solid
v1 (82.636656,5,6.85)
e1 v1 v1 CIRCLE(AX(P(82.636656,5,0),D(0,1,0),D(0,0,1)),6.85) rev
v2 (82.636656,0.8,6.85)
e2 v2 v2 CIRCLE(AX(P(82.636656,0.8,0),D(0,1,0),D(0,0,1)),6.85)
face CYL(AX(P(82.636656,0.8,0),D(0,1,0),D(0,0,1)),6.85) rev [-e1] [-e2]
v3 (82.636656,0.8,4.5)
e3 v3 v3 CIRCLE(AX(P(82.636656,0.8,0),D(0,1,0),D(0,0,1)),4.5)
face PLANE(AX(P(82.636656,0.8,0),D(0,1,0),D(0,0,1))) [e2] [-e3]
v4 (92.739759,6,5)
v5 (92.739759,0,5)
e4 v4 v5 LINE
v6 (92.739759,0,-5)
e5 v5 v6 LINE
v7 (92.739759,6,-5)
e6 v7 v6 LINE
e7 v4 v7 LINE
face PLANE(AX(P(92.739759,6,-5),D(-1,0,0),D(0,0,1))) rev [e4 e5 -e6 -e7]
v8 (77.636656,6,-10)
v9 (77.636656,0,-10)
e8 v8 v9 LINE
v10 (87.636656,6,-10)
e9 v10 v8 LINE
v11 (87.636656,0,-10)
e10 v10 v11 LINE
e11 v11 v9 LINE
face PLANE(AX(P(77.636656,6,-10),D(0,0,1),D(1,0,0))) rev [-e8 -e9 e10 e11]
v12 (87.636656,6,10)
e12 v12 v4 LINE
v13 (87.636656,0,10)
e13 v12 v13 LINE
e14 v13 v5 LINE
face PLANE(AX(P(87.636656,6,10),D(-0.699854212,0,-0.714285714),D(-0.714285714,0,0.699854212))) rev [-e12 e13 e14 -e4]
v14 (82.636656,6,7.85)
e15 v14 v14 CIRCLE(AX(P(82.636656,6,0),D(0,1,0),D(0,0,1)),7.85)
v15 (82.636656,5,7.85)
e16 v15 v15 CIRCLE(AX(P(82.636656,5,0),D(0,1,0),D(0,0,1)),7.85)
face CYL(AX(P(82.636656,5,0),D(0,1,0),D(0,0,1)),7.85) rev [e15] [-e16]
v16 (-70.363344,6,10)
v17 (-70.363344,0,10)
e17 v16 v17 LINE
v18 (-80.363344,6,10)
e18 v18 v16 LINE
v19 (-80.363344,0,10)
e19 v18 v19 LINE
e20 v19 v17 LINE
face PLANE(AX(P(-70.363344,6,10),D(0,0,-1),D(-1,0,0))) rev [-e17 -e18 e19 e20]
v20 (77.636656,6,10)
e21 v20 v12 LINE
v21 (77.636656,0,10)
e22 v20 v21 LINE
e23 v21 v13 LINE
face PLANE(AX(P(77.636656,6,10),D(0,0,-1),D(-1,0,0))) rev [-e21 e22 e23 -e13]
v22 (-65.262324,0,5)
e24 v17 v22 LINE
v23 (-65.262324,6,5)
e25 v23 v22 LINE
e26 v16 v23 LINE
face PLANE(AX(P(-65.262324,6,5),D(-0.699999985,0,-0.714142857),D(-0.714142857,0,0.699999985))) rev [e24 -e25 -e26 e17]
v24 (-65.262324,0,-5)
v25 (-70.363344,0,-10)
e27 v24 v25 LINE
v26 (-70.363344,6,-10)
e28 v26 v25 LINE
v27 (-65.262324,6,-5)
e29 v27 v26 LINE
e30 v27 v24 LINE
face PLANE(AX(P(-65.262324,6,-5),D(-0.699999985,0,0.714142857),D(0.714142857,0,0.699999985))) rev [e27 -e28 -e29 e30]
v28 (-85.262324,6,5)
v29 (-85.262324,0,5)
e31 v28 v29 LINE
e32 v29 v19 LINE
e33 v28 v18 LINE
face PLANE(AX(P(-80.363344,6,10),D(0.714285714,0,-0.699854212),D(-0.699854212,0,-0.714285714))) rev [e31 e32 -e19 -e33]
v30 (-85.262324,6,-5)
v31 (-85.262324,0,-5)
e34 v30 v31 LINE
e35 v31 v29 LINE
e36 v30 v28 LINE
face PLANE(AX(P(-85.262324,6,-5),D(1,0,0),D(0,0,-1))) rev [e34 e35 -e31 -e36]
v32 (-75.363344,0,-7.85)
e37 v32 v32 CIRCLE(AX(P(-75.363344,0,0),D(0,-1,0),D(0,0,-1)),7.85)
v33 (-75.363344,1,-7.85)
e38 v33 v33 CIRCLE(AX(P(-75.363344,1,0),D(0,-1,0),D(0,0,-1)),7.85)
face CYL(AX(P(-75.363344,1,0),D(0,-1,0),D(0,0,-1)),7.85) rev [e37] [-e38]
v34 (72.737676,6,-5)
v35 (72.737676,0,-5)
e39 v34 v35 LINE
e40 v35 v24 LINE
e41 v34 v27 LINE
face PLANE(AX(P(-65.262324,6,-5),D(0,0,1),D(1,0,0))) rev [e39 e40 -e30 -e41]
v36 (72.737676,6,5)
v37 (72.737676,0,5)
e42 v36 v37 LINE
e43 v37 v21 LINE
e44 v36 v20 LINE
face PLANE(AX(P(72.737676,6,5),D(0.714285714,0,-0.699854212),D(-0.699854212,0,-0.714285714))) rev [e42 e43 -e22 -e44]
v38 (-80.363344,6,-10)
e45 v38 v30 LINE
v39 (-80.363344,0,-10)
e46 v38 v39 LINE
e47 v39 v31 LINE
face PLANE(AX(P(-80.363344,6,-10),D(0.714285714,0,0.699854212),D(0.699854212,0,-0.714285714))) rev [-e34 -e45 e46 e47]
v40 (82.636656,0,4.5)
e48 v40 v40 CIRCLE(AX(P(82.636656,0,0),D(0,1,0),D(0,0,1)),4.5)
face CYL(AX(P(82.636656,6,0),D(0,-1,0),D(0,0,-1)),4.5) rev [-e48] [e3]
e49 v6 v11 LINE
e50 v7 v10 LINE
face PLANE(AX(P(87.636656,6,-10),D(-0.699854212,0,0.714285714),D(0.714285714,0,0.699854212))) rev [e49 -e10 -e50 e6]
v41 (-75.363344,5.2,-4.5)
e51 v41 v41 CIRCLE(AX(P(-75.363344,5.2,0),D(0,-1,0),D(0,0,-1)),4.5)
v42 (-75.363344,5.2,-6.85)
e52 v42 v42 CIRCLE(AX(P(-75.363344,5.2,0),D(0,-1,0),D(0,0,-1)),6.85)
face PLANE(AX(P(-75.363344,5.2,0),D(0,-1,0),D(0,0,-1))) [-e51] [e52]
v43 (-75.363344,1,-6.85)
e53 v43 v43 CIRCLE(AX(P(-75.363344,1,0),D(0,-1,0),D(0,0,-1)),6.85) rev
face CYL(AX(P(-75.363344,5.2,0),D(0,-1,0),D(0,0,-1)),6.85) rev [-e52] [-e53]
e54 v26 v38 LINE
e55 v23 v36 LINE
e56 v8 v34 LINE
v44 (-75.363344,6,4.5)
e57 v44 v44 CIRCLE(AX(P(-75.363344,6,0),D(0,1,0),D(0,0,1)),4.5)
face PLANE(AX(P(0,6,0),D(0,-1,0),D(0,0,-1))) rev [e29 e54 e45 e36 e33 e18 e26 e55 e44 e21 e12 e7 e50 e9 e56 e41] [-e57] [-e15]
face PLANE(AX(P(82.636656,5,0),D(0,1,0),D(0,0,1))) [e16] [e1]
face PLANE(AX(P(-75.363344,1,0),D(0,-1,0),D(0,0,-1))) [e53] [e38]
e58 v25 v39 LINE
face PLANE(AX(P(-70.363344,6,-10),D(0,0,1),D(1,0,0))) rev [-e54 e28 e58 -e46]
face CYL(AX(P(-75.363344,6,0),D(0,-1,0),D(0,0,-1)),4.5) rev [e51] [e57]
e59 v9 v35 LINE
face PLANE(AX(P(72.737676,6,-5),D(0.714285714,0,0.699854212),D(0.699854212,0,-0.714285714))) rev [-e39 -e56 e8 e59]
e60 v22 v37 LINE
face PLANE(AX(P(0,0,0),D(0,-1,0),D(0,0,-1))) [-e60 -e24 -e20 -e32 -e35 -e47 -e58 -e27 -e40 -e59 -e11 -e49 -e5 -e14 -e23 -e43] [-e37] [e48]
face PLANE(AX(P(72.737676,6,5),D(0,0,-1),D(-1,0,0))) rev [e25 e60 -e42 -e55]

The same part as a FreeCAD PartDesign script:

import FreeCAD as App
import Part
import Sketcher

V = App.Vector

doc = App.newDocument("Part")
body = doc.addObject("PartDesign::Body", "Body")

# Sketch on XZ plane
sketch1 = doc.addObject("Sketcher::SketchObject", "Sketch")
body.addObject(sketch1)
sketch1.AttachmentSupport = (doc.XZ_Plane, [""])
sketch1.MapMode = "FlatFace"
sketch1.addGeometry([
    Part.LineSegment(V(-65.262324, -5, 0), V(-70.363344, -10, 0)),  # 0
    Part.LineSegment(V(-70.363344, -10, 0), V(-80.363344, -10, 0)),  # 1
    Part.LineSegment(V(-80.363344, -10, 0), V(-85.262324, -5, 0)),  # 2
    Part.LineSegment(V(-85.262324, -5, 0), V(-85.262324, 5, 0)),  # 3
    Part.LineSegment(V(-85.262324, 5, 0), V(-80.363344, 10, 0)),  # 4
    Part.LineSegment(V(-80.363344, 10, 0), V(-70.363344, 10, 0)),  # 5
    Part.LineSegment(V(-70.363344, 10, 0), V(-65.262324, 5, 0)),  # 6
    Part.LineSegment(V(-65.262324, 5, 0), V(72.737676, 5, 0)),  # 7
    Part.LineSegment(V(72.737676, 5, 0), V(77.636656, 10, 0)),  # 8
    Part.LineSegment(V(77.636656, 10, 0), V(87.636656, 10, 0)),  # 9
    Part.LineSegment(V(87.636656, 10, 0), V(92.739759, 5, 0)),  # 10
    Part.LineSegment(V(92.739759, 5, 0), V(92.739759, -5, 0)),  # 11
    Part.LineSegment(V(92.739759, -5, 0), V(87.636656, -10, 0)),  # 12
    Part.LineSegment(V(87.636656, -10, 0), V(77.636656, -10, 0)),  # 13
    Part.LineSegment(V(77.636656, -10, 0), V(72.737676, -5, 0)),  # 14
    Part.LineSegment(V(72.737676, -5, 0), V(-65.262324, -5, 0)),  # 15
    Part.Circle(V(-75.363344, 0, 0), V(0, 0, 1), 4.5),  # 16
    Part.Circle(V(82.636656, 0, 0), V(0, 0, 1), 4.5),  # 17
], False)
sketch1.addConstraint([
    Sketcher.Constraint("Coincident", 0, 2, 1, 1),
    Sketcher.Constraint("Coincident", 1, 2, 2, 1),
    Sketcher.Constraint("Coincident", 2, 2, 3, 1),
    Sketcher.Constraint("Coincident", 3, 2, 4, 1),
    Sketcher.Constraint("Coincident", 4, 2, 5, 1),
    Sketcher.Constraint("Coincident", 5, 2, 6, 1),
    Sketcher.Constraint("Coincident", 6, 2, 7, 1),
    Sketcher.Constraint("Coincident", 7, 2, 8, 1),
    Sketcher.Constraint("Coincident", 8, 2, 9, 1),
    Sketcher.Constraint("Coincident", 9, 2, 10, 1),
    Sketcher.Constraint("Coincident", 10, 2, 11, 1),
    Sketcher.Constraint("Coincident", 11, 2, 12, 1),
    Sketcher.Constraint("Coincident", 12, 2, 13, 1),
    Sketcher.Constraint("Coincident", 13, 2, 14, 1),
    Sketcher.Constraint("Coincident", 14, 2, 15, 1),
    Sketcher.Constraint("Coincident", 15, 2, 0, 1),
    Sketcher.Constraint("Horizontal", 1),
    Sketcher.Constraint("Vertical", 3),
    Sketcher.Constraint("Horizontal", 5),
    Sketcher.Constraint("Horizontal", 7),
    Sketcher.Constraint("Horizontal", 9),
    Sketcher.Constraint("Vertical", 11),
    Sketcher.Constraint("Horizontal", 13),
    Sketcher.Constraint("Horizontal", 15),
    Sketcher.Constraint("Equal", 16, 17),
    Sketcher.Constraint("Symmetric", 1, 2, 4, 2, -1),
    Sketcher.Constraint("Symmetric", 9, 2, 12, 2, -1),
    Sketcher.Constraint("Symmetric", 7, 2, 14, 2, -1),
    Sketcher.Constraint("PointOnObject", 16, 3, -1),
    Sketcher.Constraint("PointOnObject", 17, 3, -1),
    Sketcher.Constraint("Parallel", 4, 8),
    Sketcher.Constraint("Perpendicular", 8, 10),
    Sketcher.Constraint("Perpendicular", 2, 12),
    Sketcher.Constraint("Perpendicular", 12, 14),
    Sketcher.Constraint("Horizontal", 3, 2, 6, 2),
    Sketcher.Constraint("Horizontal", 5, 2, 8, 2),
    Sketcher.Constraint("Horizontal", 7, 2, 10, 2),
    Sketcher.Constraint("Horizontal", 2, 2, 11, 2),
    Sketcher.Constraint("Vertical", 0, 2, 5, 2),
    Sketcher.Constraint("Vertical", 6, 2, 15, 2),
    Sketcher.Constraint("Equal", 5, 9),
    Sketcher.Constraint("Equal", 13, 3),
    Sketcher.Constraint("Diameter", 16, 9.0),
    Sketcher.Constraint("DistanceX", 1, 2, 1, 1, 10.0),
    Sketcher.Constraint("DistanceX", 7, 1, 7, 2, 138.0),
    Sketcher.Constraint("Distance", 2, 7.0),
    Sketcher.Constraint("DistanceY", 0, 2, -1, 1, 10.0),
    Sketcher.Constraint("DistanceX", 16, 3, 17, 3, 158.0),
    Sketcher.Constraint("DistanceX", 16, 3, 0, 2, 5.0),
    Sketcher.Constraint("DistanceX", 3, 2, 6, 2, 20.0),
    Sketcher.Constraint("DistanceX", -1, 1, 10, 2, 92.739759),
])
pad1 = doc.addObject("PartDesign::Pad", "Pad")
body.addObject(pad1)
pad1.Profile = sketch1
pad1.Length = 6
pad1.Reversed = True

# Sketch on XZ plane
sketch2 = doc.addObject("Sketcher::SketchObject", "Sketch001")
body.addObject(sketch2)
sketch2.AttachmentSupport = (doc.XZ_Plane, [""])
sketch2.MapMode = "FlatFace"
sketch2.AttachmentOffset = App.Placement(V(0, 0, -6), App.Rotation())
sketch2.addGeometry(Part.Circle(V(82.636656, 0, 0), V(0, 0, 1), 6.85), False)
sketch2.addConstraint([
    Sketcher.Constraint("PointOnObject", 0, 3, -1),
    Sketcher.Constraint("Diameter", 0, 13.7),
    Sketcher.Constraint("DistanceX", -1, 1, 0, 3, 82.636656),
])
pocket1 = doc.addObject("PartDesign::Pocket", "Pocket")
body.addObject(pocket1)
pocket1.Profile = sketch2
pocket1.Length = 5.2
pocket1.Reversed = True

# Sketch on XZ plane
sketch3 = doc.addObject("Sketcher::SketchObject", "Sketch002")
body.addObject(sketch3)
sketch3.AttachmentSupport = (doc.XZ_Plane, [""])
sketch3.MapMode = "FlatFace"
sketch3.AttachmentOffset = App.Placement(V(0, 0, -6), App.Rotation())
sketch3.addGeometry(Part.Circle(V(82.636656, 0, 0), V(0, 0, 1), 7.85), False)
sketch3.addConstraint([
    Sketcher.Constraint("PointOnObject", 0, 3, -1),
    Sketcher.Constraint("Diameter", 0, 15.7),
    Sketcher.Constraint("DistanceX", -1, 1, 0, 3, 82.636656),
])
pocket2 = doc.addObject("PartDesign::Pocket", "Pocket001")
body.addObject(pocket2)
pocket2.Profile = sketch3
pocket2.Length = 1
pocket2.Reversed = True

# Sketch on XZ plane
sketch4 = doc.addObject("Sketcher::SketchObject", "Sketch003")
body.addObject(sketch4)
sketch4.AttachmentSupport = (doc.XZ_Plane, [""])
sketch4.MapMode = "FlatFace"
sketch4.addGeometry(Part.Circle(V(-75.363344, 0, 0), V(0, 0, 1), 6.85), False)
sketch4.addConstraint([
    Sketcher.Constraint("PointOnObject", 0, 3, -1),
    Sketcher.Constraint("Diameter", 0, 13.7),
    Sketcher.Constraint("DistanceX", 0, 3, -1, 1, 75.363344),
])
pocket3 = doc.addObject("PartDesign::Pocket", "Pocket002")
body.addObject(pocket3)
pocket3.Profile = sketch4
pocket3.Length = 5.2

# Sketch on XZ plane
sketch5 = doc.addObject("Sketcher::SketchObject", "Sketch004")
body.addObject(sketch5)
sketch5.AttachmentSupport = (doc.XZ_Plane, [""])
sketch5.MapMode = "FlatFace"
sketch5.addGeometry(Part.Circle(V(-75.363344, 0, 0), V(0, 0, 1), 7.85), False)
sketch5.addConstraint([
    Sketcher.Constraint("PointOnObject", 0, 3, -1),
    Sketcher.Constraint("Diameter", 0, 15.7),
    Sketcher.Constraint("DistanceX", 0, 3, -1, 1, 75.363344),
])
pocket4 = doc.addObject("PartDesign::Pocket", "Pocket003")
body.addObject(pocket4)
pocket4.Profile = sketch5
pocket4.Length = 1

doc.recompute()
